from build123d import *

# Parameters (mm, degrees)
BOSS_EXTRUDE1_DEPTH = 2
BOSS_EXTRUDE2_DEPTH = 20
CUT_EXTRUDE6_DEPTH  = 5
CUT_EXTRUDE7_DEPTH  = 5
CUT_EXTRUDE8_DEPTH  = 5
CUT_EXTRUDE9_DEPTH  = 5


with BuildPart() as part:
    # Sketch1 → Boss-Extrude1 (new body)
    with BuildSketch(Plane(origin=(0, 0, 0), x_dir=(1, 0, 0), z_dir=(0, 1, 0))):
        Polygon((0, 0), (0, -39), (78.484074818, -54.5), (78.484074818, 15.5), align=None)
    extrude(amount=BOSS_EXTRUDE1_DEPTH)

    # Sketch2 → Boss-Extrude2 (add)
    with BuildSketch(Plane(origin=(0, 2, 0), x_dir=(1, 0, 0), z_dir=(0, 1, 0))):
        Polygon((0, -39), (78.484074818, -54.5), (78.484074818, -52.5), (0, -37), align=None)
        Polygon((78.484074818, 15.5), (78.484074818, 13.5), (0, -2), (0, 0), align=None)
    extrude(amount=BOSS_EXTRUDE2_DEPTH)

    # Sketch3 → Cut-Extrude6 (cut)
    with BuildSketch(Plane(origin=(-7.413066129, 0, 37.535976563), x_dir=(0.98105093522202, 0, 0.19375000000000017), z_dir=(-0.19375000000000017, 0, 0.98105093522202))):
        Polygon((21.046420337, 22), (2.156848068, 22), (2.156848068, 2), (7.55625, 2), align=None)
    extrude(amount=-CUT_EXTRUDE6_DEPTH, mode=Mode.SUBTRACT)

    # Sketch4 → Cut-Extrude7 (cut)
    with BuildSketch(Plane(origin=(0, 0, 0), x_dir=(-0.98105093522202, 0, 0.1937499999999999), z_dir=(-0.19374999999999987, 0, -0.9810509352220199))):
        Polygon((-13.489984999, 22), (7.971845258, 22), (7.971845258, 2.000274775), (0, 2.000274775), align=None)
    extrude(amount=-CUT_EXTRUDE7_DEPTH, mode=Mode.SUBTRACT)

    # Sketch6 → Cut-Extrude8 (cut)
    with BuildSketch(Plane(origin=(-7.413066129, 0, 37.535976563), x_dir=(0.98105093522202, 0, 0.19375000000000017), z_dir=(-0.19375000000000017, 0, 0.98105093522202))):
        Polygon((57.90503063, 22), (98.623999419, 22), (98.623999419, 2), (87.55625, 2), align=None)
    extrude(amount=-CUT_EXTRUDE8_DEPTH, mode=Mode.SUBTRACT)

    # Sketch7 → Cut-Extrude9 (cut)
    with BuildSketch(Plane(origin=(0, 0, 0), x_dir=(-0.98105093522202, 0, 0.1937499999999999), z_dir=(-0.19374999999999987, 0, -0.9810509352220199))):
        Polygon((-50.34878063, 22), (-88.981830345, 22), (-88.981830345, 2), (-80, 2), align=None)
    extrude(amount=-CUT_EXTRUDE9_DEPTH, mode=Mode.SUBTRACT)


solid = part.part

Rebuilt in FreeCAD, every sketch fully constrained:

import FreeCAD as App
import Part
import Sketcher

V = App.Vector
Q = App.Units.Quantity


def add_polygon(sketch, points):
    """Adds a closed chain of lines whose ends are joined by coincident constraints."""
    first, n = sketch.GeometryCount, len(points)
    for a, b in zip(points, points[1:] + points[:1]):
        sketch.addGeometry(Part.LineSegment(App.Vector(*a, 0), App.Vector(*b, 0)), False)
    for i in range(n):
        sketch.addConstraint(Sketcher.Constraint("Coincident", first + i, 2, first + (i + 1) % n, 1))

doc = App.newDocument("Part")
body = doc.addObject("PartDesign::Body", "Body")

sketch1 = doc.addObject("Sketcher::SketchObject", "Sketch")
body.addObject(sketch1)
sketch1.AttachmentSupport = (doc.XZ_Plane, [""])
sketch1.MapMode = "FlatFace"
add_polygon(sketch1, [(0, 0), (0, 39), (78, 54), (78, -16)])
sketch1.addConstraint([
    Sketcher.Constraint("Vertical", 0),
    Sketcher.Constraint("Vertical", 2),
    Sketcher.Constraint("Coincident", 3, 2, -1, 1),
    Sketcher.Constraint("Equal", 1, 3),
    Sketcher.Constraint("DistanceY", 0, 1, 0, 2, 39.0),
    Sketcher.Constraint("DistanceY", 2, 2, 2, 1, 70.0),
    Sketcher.Constraint("Distance", 1, 80.0),
])
pad1 = doc.addObject("PartDesign::Pad", "Pad")
body.addObject(pad1)
pad1.Profile = sketch1
pad1.Length = 2
pad1.Reversed = True

sketch2 = doc.addObject("Sketcher::SketchObject", "Sketch001")
body.addObject(sketch2)
sketch2.AttachmentSupport = (doc.XZ_Plane, [""])
sketch2.MapMode = "FlatFace"
sketch2.AttachmentOffset = App.Placement(V(0, 0, -2), App.Rotation())
add_polygon(sketch2, [(0, 39), (78.5, 54.5), (78.5, 52.5), (0, 37)])
add_polygon(sketch2, [(78.5, -13.5), (78.5, -15.5), (0, 0), (0, 2)])
sketch2.addConstraint([
    Sketcher.Constraint("Vertical", 1),
    Sketcher.Constraint("Vertical", 3),
    Sketcher.Constraint("Vertical", 4),
    Sketcher.Constraint("Vertical", 6),
    Sketcher.Constraint("Coincident", 5, 2, -1, 1),
    Sketcher.Constraint("PointOnObject", 2, 2, -2),
    Sketcher.Constraint("Parallel", 0, 2),
    Sketcher.Constraint("Parallel", 5, 7),
    Sketcher.Constraint("Vertical", 1, 2, 4, 2),
    Sketcher.Constraint("Equal", 3, 4),
    Sketcher.Constraint("Equal", 2, 5),
    Sketcher.Constraint("DistanceY", 1, 2, 1, 1, 2.0),
    Sketcher.Constraint("Distance", 0, 80.0),
    Sketcher.Constraint("DistanceY", -1, 1, 2, 2, 37.0),
    Sketcher.Constraint("DistanceY", 4, 2, 1, 2, 68.0),
])
pad2 = doc.addObject("PartDesign::Pad", "Pad001")
body.addObject(pad2)
pad2.Profile = sketch2
pad2.Length = 20
pad2.Reversed = True

sketch3 = doc.addObject("Sketcher::SketchObject", "Sketch002")
body.addObject(sketch3)
sketch3.Placement = App.Placement(V(-7.413066, 0, 37.535977), App.Rotation(V(0.981050935, 0, 0.19375), V(0, 1, 0), V(-0.19375, 0, 0.981050935), "ZXY"))
add_polygon(sketch3, [(21, 22), (2, 22), (2, 2), (8, 2)])
sketch3.addConstraint([
    Sketcher.Constraint("Horizontal", 0),
    Sketcher.Constraint("Vertical", 1),
    Sketcher.Constraint("Horizontal", 2),
    Sketcher.Constraint("DistanceY", 1, 2, 1, 1, 20.0),
    Sketcher.Constraint("Angle", 3, Q("56 deg")),
    Sketcher.Constraint("DistanceY", -1, 1, 0, 2, 22.0),
    Sketcher.Constraint("DistanceX", 2, 1, 2, 2, 5.399402),
    Sketcher.Constraint("DistanceX", -1, 1, 0, 2, 2.156848),
])
pocket1 = doc.addObject("PartDesign::Pocket", "Pocket")
body.addObject(pocket1)
pocket1.Profile = sketch3
pocket1.Length = 5

sketch4 = doc.addObject("Sketcher::SketchObject", "Sketch003")
body.addObject(sketch4)
sketch4.Placement = App.Placement(V(0, 0, 0), App.Rotation(V(-0.981050935, 0, 0.19375), V(0, 1, 0), V(-0.19375, 0, -0.981050935), "ZXY"))
add_polygon(sketch4, [(8, 22), (-13, 22), (0, 2), (8, 2)])
sketch4.addConstraint([
    Sketcher.Constraint("Horizontal", 0),
    Sketcher.Constraint("Horizontal", 2),
    Sketcher.Constraint("Vertical", 3),
    Sketcher.Constraint("PointOnObject", 1, 2, -2),
    Sketcher.Constraint("Angle", 1, Q("-56 deg")),
    Sketcher.Constraint("DistanceY", -1, 1, 0, 2, 22.0),
    Sketcher.Constraint("DistanceX", 0, 2, 0, 1, 21.46183),
    Sketcher.Constraint("DistanceX", 2, 1, 2, 2, 7.971845),
])
pocket2 = doc.addObject("PartDesign::Pocket", "Pocket001")
body.addObject(pocket2)
pocket2.Profile = sketch4
pocket2.Length = 5

sketch5 = doc.addObject("Sketcher::SketchObject", "Sketch004")
body.addObject(sketch5)
sketch5.Placement = App.Placement(V(-7.413066, 0, 37.535977), App.Rotation(V(0.981050935, 0, 0.19375), V(0, 1, 0), V(-0.19375, 0, 0.981050935), "ZXY"))
add_polygon(sketch5, [(99, 22), (58, 22), (88, 2), (99, 2)])
sketch5.addConstraint([
    Sketcher.Constraint("Horizontal", 0),
    Sketcher.Constraint("Horizontal", 2),
    Sketcher.Constraint("Vertical", 3),
    Sketcher.Constraint("DistanceY", 3, 1, 3, 2, 20.0),
    Sketcher.Constraint("Angle", 1, Q("-34 deg")),
    Sketcher.Constraint("DistanceY", -1, 1, 0, 2, 22.0),
    Sketcher.Constraint("DistanceX", -1, 1, 2, 2, 98.623999),
    Sketcher.Constraint("DistanceX", 0, 2, 0, 1, 40.718969),
])
pocket3 = doc.addObject("PartDesign::Pocket", "Pocket002")
body.addObject(pocket3)
pocket3.Profile = sketch5
pocket3.Length = 5

sketch6 = doc.addObject("Sketcher::SketchObject", "Sketch005")
body.addObject(sketch6)
sketch6.Placement = App.Placement(V(0, 0, 0), App.Rotation(V(-0.981050935, 0, 0.19375), V(0, 1, 0), V(-0.19375, 0, -0.981050935), "ZXY"))
add_polygon(sketch6, [(-50, 22), (-89, 22), (-89, 2), (-80, 2)])
sketch6.addConstraint([
    Sketcher.Constraint("Horizontal", 0),
    Sketcher.Constraint("Vertical", 1),
    Sketcher.Constraint("Horizontal", 2),
    Sketcher.Constraint("DistanceY", 1, 2, 1, 1, 20.0),
    Sketcher.Constraint("Angle", 3, Q("34 deg")),
    Sketcher.Constraint("DistanceY", -1, 1, 0, 2, 22.0),
    Sketcher.Constraint("DistanceX", 2, 2, -1, 1, 80.0),
    Sketcher.Constraint("DistanceX", 0, 2, 0, 1, 38.63305),
])
pocket4 = doc.addObject("PartDesign::Pocket", "Pocket003")
body.addObject(pocket4)
pocket4.Profile = sketch6
pocket4.Length = 5

doc.recompute()
